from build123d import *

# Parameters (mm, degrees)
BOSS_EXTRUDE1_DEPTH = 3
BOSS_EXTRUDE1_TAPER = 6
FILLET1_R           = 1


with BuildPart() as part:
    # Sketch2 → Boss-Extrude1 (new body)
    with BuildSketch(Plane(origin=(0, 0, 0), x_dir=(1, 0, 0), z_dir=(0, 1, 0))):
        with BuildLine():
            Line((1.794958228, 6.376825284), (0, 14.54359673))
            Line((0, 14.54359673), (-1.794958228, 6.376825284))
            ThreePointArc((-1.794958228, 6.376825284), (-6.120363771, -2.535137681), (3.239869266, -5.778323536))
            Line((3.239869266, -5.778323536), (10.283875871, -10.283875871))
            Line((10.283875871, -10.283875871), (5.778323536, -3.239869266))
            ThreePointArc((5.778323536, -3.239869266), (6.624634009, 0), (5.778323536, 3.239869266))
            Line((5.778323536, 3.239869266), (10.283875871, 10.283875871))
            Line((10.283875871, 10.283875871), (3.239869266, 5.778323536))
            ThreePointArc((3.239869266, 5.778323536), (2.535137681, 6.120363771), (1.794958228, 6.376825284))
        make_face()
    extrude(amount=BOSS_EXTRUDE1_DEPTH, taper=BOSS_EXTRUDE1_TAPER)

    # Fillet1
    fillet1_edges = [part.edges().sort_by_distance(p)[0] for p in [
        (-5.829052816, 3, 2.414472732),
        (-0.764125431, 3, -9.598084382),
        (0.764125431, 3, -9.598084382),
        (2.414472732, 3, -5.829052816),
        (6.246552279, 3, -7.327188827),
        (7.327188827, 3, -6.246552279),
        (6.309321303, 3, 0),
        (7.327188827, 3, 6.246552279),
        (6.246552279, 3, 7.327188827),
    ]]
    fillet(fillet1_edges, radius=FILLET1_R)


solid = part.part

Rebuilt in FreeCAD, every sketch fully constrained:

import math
import FreeCAD as App
import Part
import Sketcher


def edges_at(feature, points):
    """Names of the edges that pass closest to the given points."""
    edges = feature.Shape.Edges
    near = lambda p: min(range(len(edges)), key=lambda i: edges[i].distToShape(Part.Vertex(*p))[0])
    return sorted({f"Edge{near(p) + 1}" for p in points})

doc = App.newDocument("Part")
body = doc.addObject("PartDesign::Body", "Body")

sketch1 = doc.addObject("Sketcher::SketchObject", "Sketch")
body.addObject(sketch1)
sketch1.AttachmentSupport = (doc.XZ_Plane, [""])
sketch1.MapMode = "FlatFace"
sketch1.addGeometry([
    Part.LineSegment(App.Vector(1.8, -6.4, 0), App.Vector(0, -14.5, 0)),
    Part.LineSegment(App.Vector(0, -14.5, 0), App.Vector(-1.8, -6.4, 0)),
    Part.ArcOfCircle(Part.Circle(App.Vector(0, 0, 0), App.Vector(0, 0, 1), 6.6), math.radians(61), math.radians(254)),
    Part.LineSegment(App.Vector(3.2, 5.8, 0), App.Vector(10.3, 10.3, 0)),
    Part.LineSegment(App.Vector(10.3, 10.3, 0), App.Vector(5.8, 3.2, 0)),
    Part.ArcOfCircle(Part.Circle(App.Vector(0, 0, 0), App.Vector(0, 0, 1), 6.6), math.radians(-29), math.radians(29)),
    Part.LineSegment(App.Vector(5.8, -3.2, 0), App.Vector(10.3, -10.3, 0)),
    Part.LineSegment(App.Vector(10.3, -10.3, 0), App.Vector(3.2, -5.8, 0)),
    Part.ArcOfCircle(Part.Circle(App.Vector(0, 0, 0), App.Vector(0, 0, 1), 6.6), math.radians(-74.28), math.radians(-60.72)),
], False)
sketch1.addConstraint([
    Sketcher.Constraint("Coincident", 0, 2, 1, 1),
    Sketcher.Constraint("Coincident", 1, 2, 2, 2),
    Sketcher.Constraint("Coincident", 2, 1, 3, 1),
    Sketcher.Constraint("Coincident", 3, 2, 4, 1),
    Sketcher.Constraint("Coincident", 4, 2, 5, 2),
    Sketcher.Constraint("Coincident", 5, 1, 6, 1),
    Sketcher.Constraint("Coincident", 6, 2, 7, 1),
    Sketcher.Constraint("Coincident", 7, 2, 8, 2),
    Sketcher.Constraint("Coincident", 8, 1, 0, 1),
    Sketcher.Constraint("Coincident", 2, 3, -1, 1),
    Sketcher.Constraint("Coincident", 5, 3, -1, 1),
    Sketcher.Constraint("Coincident", 8, 3, -1, 1),
    Sketcher.Constraint("Equal", 2, 5),
    Sketcher.Constraint("Equal", 5, 8),
    Sketcher.Constraint("Symmetric", 3, 2, 6, 2, -1),
    Sketcher.Constraint("PointOnObject", 0, 2, -2),
    Sketcher.Constraint("Perpendicular", 3, 6),
    Sketcher.Constraint("Perpendicular", 4, 7),
    Sketcher.Constraint("Horizontal", 1, 2, 8, 1),
    Sketcher.Constraint("Vertical", 4, 2, 5, 1),
    Sketcher.Constraint("Equal", 1, 3),
    Sketcher.Constraint("Equal", 3, 4),
    Sketcher.Constraint("Radius", 2, 6.624634),
    Sketcher.Constraint("Distance", 0, 8.3617),
    Sketcher.Constraint("DistanceY", 1, 2, 3, 2, 16.660701),
    Sketcher.Constraint("DistanceY", 1, 2, 7, 2, 0.598502),
])
pad1 = doc.addObject("PartDesign::Pad", "Pad")
body.addObject(pad1)
pad1.Profile = sketch1
pad1.Length = 3
pad1.Reversed = True
pad1.TaperAngle = -6
doc.recompute()

fillet = doc.addObject("PartDesign::Fillet", "Fillet")
body.addObject(fillet)
fillet.Base = (pad1, edges_at(pad1, [
    (-5.829, 3, 2.414),
    (-0.764, 3, -9.598),
    (0.764, 3, -9.598),
    (2.414, 3, -5.829),
    (6.247, 3, -7.327),
    (7.327, 3, -6.247),
    (6.309, 3, 0),
    (7.327, 3, 6.247),
    (6.247, 3, 7.327),
]))
fillet.Radius = 1

doc.recompute()
